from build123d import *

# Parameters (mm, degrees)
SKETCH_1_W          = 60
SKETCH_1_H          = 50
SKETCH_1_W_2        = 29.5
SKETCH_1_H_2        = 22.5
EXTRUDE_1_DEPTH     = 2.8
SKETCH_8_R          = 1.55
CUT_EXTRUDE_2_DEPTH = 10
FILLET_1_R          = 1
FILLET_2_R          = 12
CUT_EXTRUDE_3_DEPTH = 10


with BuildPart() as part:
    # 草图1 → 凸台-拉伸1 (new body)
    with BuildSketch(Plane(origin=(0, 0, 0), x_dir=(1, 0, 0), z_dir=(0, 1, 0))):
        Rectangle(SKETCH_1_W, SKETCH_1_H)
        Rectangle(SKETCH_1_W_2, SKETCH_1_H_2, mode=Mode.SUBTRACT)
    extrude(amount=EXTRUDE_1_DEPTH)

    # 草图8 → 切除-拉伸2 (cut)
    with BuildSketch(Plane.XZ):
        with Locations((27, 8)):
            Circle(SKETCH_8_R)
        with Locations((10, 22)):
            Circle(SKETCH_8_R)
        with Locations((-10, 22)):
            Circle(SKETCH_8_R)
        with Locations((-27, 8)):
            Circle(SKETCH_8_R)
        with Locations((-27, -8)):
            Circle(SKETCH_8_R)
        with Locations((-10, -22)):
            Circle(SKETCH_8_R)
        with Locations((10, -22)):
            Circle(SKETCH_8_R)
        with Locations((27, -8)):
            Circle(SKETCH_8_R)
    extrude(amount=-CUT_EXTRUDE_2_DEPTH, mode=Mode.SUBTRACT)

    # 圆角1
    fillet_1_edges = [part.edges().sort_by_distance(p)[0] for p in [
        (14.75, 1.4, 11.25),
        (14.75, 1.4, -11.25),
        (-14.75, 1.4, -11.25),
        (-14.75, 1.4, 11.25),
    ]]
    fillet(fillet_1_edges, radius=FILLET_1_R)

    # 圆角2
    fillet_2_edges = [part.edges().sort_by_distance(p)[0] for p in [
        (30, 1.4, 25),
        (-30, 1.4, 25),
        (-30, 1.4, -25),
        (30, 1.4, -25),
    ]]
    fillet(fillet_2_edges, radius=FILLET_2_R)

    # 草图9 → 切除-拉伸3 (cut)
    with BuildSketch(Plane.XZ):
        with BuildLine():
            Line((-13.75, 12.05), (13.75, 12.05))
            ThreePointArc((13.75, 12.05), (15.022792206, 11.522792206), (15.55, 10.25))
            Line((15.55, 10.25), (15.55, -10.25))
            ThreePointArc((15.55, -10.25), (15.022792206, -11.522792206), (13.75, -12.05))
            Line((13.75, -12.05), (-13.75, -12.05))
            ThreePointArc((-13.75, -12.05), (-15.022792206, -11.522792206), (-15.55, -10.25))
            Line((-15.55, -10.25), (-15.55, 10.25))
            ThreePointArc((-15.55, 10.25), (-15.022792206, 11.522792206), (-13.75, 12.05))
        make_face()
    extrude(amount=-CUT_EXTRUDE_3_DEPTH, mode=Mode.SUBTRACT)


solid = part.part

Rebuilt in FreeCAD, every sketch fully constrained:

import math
import FreeCAD as App
import Part
import Sketcher

V = App.Vector


def edges_at(feature, points):
    """Names of the edges that pass closest to the given points."""
    edges = feature.Shape.Edges
    near = lambda p: min(range(len(edges)), key=lambda i: edges[i].distToShape(Part.Vertex(*p))[0])
    return sorted({f"Edge{near(p) + 1}" for p in points})

doc = App.newDocument("Part")
body = doc.addObject("PartDesign::Body", "Body")

# Sketch on XZ plane
sketch1 = body.newObject("Sketcher::SketchObject", "Sketch")
sketch1.AttachmentSupport = (doc.getObject("XZ_Plane"), [""])
sketch1.MapMode = "FlatFace"
sketch1.addGeometry([
    Part.LineSegment(V(-30, -25, 0), V(-30, 25, 0)),  # 0
    Part.LineSegment(V(-30, 25, 0), V(30, 25, 0)),  # 1
    Part.LineSegment(V(30, 25, 0), V(30, -25, 0)),  # 2
    Part.LineSegment(V(30, -25, 0), V(-30, -25, 0)),  # 3
    Part.LineSegment(V(15, 11, 0), V(-15, 11, 0)),  # 4
    Part.LineSegment(V(-15, 11, 0), V(-15, -11, 0)),  # 5
    Part.LineSegment(V(-15, -11, 0), V(15, -11, 0)),  # 6
    Part.LineSegment(V(15, -11, 0), V(15, 11, 0)),  # 7
], False)
sketch1.addConstraint([
    Sketcher.Constraint("Coincident", 0, 2, 1, 1),
    Sketcher.Constraint("Coincident", 1, 2, 2, 1),
    Sketcher.Constraint("Coincident", 2, 2, 3, 1),
    Sketcher.Constraint("Coincident", 3, 2, 0, 1),
    Sketcher.Constraint("Coincident", 4, 2, 5, 1),
    Sketcher.Constraint("Coincident", 5, 2, 6, 1),
    Sketcher.Constraint("Coincident", 6, 2, 7, 1),
    Sketcher.Constraint("Coincident", 7, 2, 4, 1),
    Sketcher.Constraint("Vertical", 0),
    Sketcher.Constraint("Horizontal", 1),
    Sketcher.Constraint("Vertical", 2),
    Sketcher.Constraint("Horizontal", 3),
    Sketcher.Constraint("Horizontal", 4),
    Sketcher.Constraint("Vertical", 5),
    Sketcher.Constraint("Horizontal", 6),
    Sketcher.Constraint("Vertical", 7),
    Sketcher.Constraint("Symmetric", 0, 2, 2, 2, -1, 1),
    Sketcher.Constraint("Symmetric", 4, 2, 6, 2, -1, 1),
    Sketcher.Constraint("DistanceX", 1, 1, 1, 2, 60.0),
    Sketcher.Constraint("DistanceY", 0, 1, 0, 2, 50.0),
    Sketcher.Constraint("DistanceX", 4, 2, 4, 1, 29.5),
    Sketcher.Constraint("DistanceY", 5, 2, 5, 1, 22.5),
])
pad1 = body.newObject("PartDesign::Pad", "Pad")
pad1.Profile = sketch1
pad1.Length = 2.8
pad1.Reversed = True

# Sketch on XZ plane
sketch2 = body.newObject("Sketcher::SketchObject", "Sketch001")
sketch2.AttachmentSupport = (doc.getObject("XZ_Plane"), [""])
sketch2.MapMode = "FlatFace"
sketch2.addGeometry([
    Part.Circle(V(27, 8, 0), V(0, 0, 1), 1.6),  # 0
    Part.Circle(V(10, 22, 0), V(0, 0, 1), 1.6),  # 1
    Part.Circle(V(-10, 22, 0), V(0, 0, 1), 1.6),  # 2
    Part.Circle(V(-27, 8, 0), V(0, 0, 1), 1.6),  # 3
    Part.Circle(V(-27, -8, 0), V(0, 0, 1), 1.6),  # 4
    Part.Circle(V(-10, -22, 0), V(0, 0, 1), 1.6),  # 5
    Part.Circle(V(10, -22, 0), V(0, 0, 1), 1.6),  # 6
    Part.Circle(V(27, -8, 0), V(0, 0, 1), 1.6),  # 7
], False)
sketch2.addConstraint([
    Sketcher.Constraint("Equal", 0, 1),
    Sketcher.Constraint("Equal", 1, 2),
    Sketcher.Constraint("Equal", 2, 3),
    Sketcher.Constraint("Equal", 3, 4),
    Sketcher.Constraint("Equal", 4, 5),
    Sketcher.Constraint("Equal", 5, 6),
    Sketcher.Constraint("Equal", 6, 7),
    Sketcher.Constraint("Symmetric", 0, 3, 4, 3, -1, 1),
    Sketcher.Constraint("Symmetric", 1, 3, 5, 3, -1, 1),
    Sketcher.Constraint("Symmetric", 2, 3, 6, 3, -1, 1),
    Sketcher.Constraint("Symmetric", 3, 3, 7, 3, -1, 1),
    Sketcher.Constraint("Symmetric", 1, 3, 2, 3, -2),
    Sketcher.Constraint("Symmetric", 0, 3, 3, 3, -2),
    Sketcher.Constraint("Diameter", 0, 3.1),
    Sketcher.Constraint("DistanceX", -1, 1, 0, 3, 27.0),
    Sketcher.Constraint("DistanceY", -1, 1, 0, 3, 8.0),
    Sketcher.Constraint("DistanceX", -1, 1, 1, 3, 10.0),
    Sketcher.Constraint("DistanceY", -1, 1, 1, 3, 22.0),
])
pocket1 = body.newObject("PartDesign::Pocket", "Pocket")
pocket1.Profile = sketch2
pocket1.Length = 10
doc.recompute()

fillet = body.newObject("PartDesign::Fillet", "Fillet")
fillet.Base = (pocket1, edges_at(pocket1, [
    (14.75, 1.4, 11.25),
    (14.75, 1.4, -11.25),
    (-14.75, 1.4, -11.25),
    (-14.75, 1.4, 11.25),
]))
fillet.Radius = 1
doc.recompute()

fillet2 = body.newObject("PartDesign::Fillet", "Fillet001")
fillet2.Base = (fillet, edges_at(fillet, [
    (30, 1.4, 25),
    (-30, 1.4, 25),
    (-30, 1.4, -25),
    (30, 1.4, -25),
]))
fillet2.Radius = 12

# Sketch on XZ plane
sketch3 = body.newObject("Sketcher::SketchObject", "Sketch002")
sketch3.AttachmentSupport = (doc.getObject("XZ_Plane"), [""])
sketch3.MapMode = "FlatFace"
sketch3.addGeometry([
    Part.LineSegment(V(13.8, 12.1, 0), V(-13.8, 12.1, 0)),  # 0
    Part.ArcOfCircle(Part.Circle(V(-13.8, 10.2, 0), V(0, 0, 1), 1.8), math.radians(90), math.radians(180)),  # 1
    Part.LineSegment(V(-15.6, 10.2, 0), V(-15.6, -10.2, 0)),  # 2
    Part.ArcOfCircle(Part.Circle(V(-13.8, -10.2, 0), V(0, 0, 1), 1.8), math.radians(180), math.radians(270)),  # 3
    Part.LineSegment(V(-13.8, -12.1, 0), V(13.8, -12.1, 0)),  # 4
    Part.ArcOfCircle(Part.Circle(V(13.8, -10.2, 0), V(0, 0, 1), 1.8), math.radians(-90), math.radians(0)),  # 5
    Part.LineSegment(V(15.6, -10.2, 0), V(15.6, 10.2, 0)),  # 6
    Part.ArcOfCircle(Part.Circle(V(13.8, 10.2, 0), V(0, 0, 1), 1.8), math.radians(0), math.radians(90)),  # 7
], False)
sketch3.addConstraint([
    Sketcher.Constraint("Tangent", 0, 2, 1, 1),
    Sketcher.Constraint("Tangent", 1, 2, 2, 1),
    Sketcher.Constraint("Tangent", 2, 2, 3, 1),
    Sketcher.Constraint("Tangent", 3, 2, 4, 1),
    Sketcher.Constraint("Tangent", 4, 2, 5, 1),
    Sketcher.Constraint("Tangent", 5, 2, 6, 1),
    Sketcher.Constraint("Tangent", 6, 2, 7, 1),
    Sketcher.Constraint("Tangent", 7, 2, 0, 1),
    Sketcher.Constraint("Horizontal", 0),
    Sketcher.Constraint("Vertical", 2),
    Sketcher.Constraint("Horizontal", 4),
    Sketcher.Constraint("Vertical", 6),
    Sketcher.Constraint("Equal", 1, 3),
    Sketcher.Constraint("Equal", 3, 5),
    Sketcher.Constraint("Equal", 5, 7),
    Sketcher.Constraint("Symmetric", 1, 3, 5, 3, -1, 1),
    Sketcher.Constraint("Radius", 1, 1.8),
    Sketcher.Constraint("DistanceX", 0, 2, 0, 1, 27.5),
    Sketcher.Constraint("DistanceY", 2, 2, 2, 1, 20.5),
])
pocket2 = body.newObject("PartDesign::Pocket", "Pocket001")
pocket2.Profile = sketch3
pocket2.Length = 10

doc.recompute()
